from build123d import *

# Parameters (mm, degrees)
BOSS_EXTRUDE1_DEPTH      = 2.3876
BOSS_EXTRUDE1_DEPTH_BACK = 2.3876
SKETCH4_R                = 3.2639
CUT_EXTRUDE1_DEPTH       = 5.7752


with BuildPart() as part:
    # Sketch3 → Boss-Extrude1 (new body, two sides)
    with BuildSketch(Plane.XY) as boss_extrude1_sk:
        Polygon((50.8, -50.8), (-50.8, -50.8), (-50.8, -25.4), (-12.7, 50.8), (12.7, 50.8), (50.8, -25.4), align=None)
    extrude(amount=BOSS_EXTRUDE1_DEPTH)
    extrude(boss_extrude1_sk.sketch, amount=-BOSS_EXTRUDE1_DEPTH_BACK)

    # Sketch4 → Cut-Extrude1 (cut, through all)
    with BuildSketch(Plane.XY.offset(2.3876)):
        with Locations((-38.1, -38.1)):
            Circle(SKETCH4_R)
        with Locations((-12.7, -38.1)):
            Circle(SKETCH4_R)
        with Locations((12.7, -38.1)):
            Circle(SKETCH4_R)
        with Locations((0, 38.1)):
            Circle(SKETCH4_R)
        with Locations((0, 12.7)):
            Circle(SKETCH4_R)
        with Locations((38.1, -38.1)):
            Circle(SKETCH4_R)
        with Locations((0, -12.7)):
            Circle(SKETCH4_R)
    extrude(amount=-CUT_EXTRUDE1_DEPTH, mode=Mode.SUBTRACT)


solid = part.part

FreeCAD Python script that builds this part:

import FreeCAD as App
import Part
import Sketcher
from FreeCAD import Vector
Q = App.Units.Quantity

doc = App.newDocument("Part")
body = doc.addObject("PartDesign::Body", "Body")

# Sketch on XY plane
sketch1 = doc.addObject("Sketcher::SketchObject", "Sketch")
body.addObject(sketch1)
sketch1.AttachmentSupport = (doc.XY_Plane, [""])
sketch1.MapMode = "FlatFace"
sketch1.addGeometry(Part.LineSegment(Vector(-51, -51, 0), Vector(51, -51, 0)), False)
sketch1.addGeometry(Part.LineSegment(Vector(51, -51, 0), Vector(51, -25, 0)), False)
sketch1.addGeometry(Part.LineSegment(Vector(51, -25, 0), Vector(13, 51, 0)), False)
sketch1.addGeometry(Part.LineSegment(Vector(13, 51, 0), Vector(-13, 51, 0)), False)
sketch1.addGeometry(Part.LineSegment(Vector(-13, 51, 0), Vector(-51, -25, 0)), False)
sketch1.addGeometry(Part.LineSegment(Vector(-51, -25, 0), Vector(-51, -51, 0)), False)
sketch1.addConstraint(Sketcher.Constraint("Coincident", 0, 2, 1, 1))
sketch1.addConstraint(Sketcher.Constraint("Coincident", 1, 2, 2, 1))
sketch1.addConstraint(Sketcher.Constraint("Coincident", 2, 2, 3, 1))
sketch1.addConstraint(Sketcher.Constraint("Coincident", 3, 2, 4, 1))
sketch1.addConstraint(Sketcher.Constraint("Coincident", 4, 2, 5, 1))
sketch1.addConstraint(Sketcher.Constraint("Coincident", 5, 2, 0, 1))
sketch1.addConstraint(Sketcher.Constraint("Horizontal", 0))
sketch1.addConstraint(Sketcher.Constraint("Vertical", 1))
sketch1.addConstraint(Sketcher.Constraint("Horizontal", 3))
sketch1.addConstraint(Sketcher.Constraint("Vertical", 5))
sketch1.addConstraint(Sketcher.Constraint("Symmetric", 1, 2, 4, 2, -2))
sketch1.addConstraint(Sketcher.Constraint("Equal", 3, 1))
sketch1.addConstraint(Sketcher.Constraint("Equal", 2, 4))
sketch1.addConstraint(Sketcher.Constraint("DistanceX", 0, 1, 0, 2, Q("4 in")))
sketch1.addConstraint(Sketcher.Constraint("DistanceX", 3, 2, 3, 1, Q("1 in")))
sketch1.addConstraint(Sketcher.Constraint("DistanceY", 0, 2, -1, 1, Q("2 in")))
sketch1.addConstraint(Sketcher.Constraint("DistanceY", -1, 1, 2, 2, Q("2 in")))
pad1 = doc.addObject("PartDesign::Pad", "Pad")
body.addObject(pad1)
pad1.Profile = sketch1
pad1.Type = "TwoLengths"
pad1.Length = Q("0.094 in")
pad1.Length2 = Q("0.094 in")

# Sketch on XY plane
sketch2 = doc.addObject("Sketcher::SketchObject", "Sketch001")
body.addObject(sketch2)
sketch2.AttachmentSupport = (doc.XY_Plane, [""])
sketch2.MapMode = "FlatFace"
sketch2.AttachmentOffset = App.Placement(Vector(0, 0, 0.094 * 25.4), App.Rotation())
sketch2.addGeometry(Part.Circle(Vector(-38.1, -38.1, 0), Vector(0, 0, 1), 3.3), False)
sketch2.addGeometry(Part.Circle(Vector(-12.7, -38.1, 0), Vector(0, 0, 1), 3.3), False)
sketch2.addGeometry(Part.Circle(Vector(12.7, -38.1, 0), Vector(0, 0, 1), 3.3), False)
sketch2.addGeometry(Part.Circle(Vector(0, 38.1, 0), Vector(0, 0, 1), 3.3), False)
sketch2.addGeometry(Part.Circle(Vector(0, 12.7, 0), Vector(0, 0, 1), 3.3), False)
sketch2.addGeometry(Part.Circle(Vector(38.1, -38.1, 0), Vector(0, 0, 1), 3.3), False)
sketch2.addGeometry(Part.Circle(Vector(0, -12.7, 0), Vector(0, 0, 1), 3.3), False)
sketch2.addConstraint(Sketcher.Constraint("Equal", 0, 1))
sketch2.addConstraint(Sketcher.Constraint("Equal", 1, 2))
sketch2.addConstraint(Sketcher.Constraint("Equal", 2, 3))
sketch2.addConstraint(Sketcher.Constraint("Equal", 3, 4))
sketch2.addConstraint(Sketcher.Constraint("Equal", 4, 5))
sketch2.addConstraint(Sketcher.Constraint("Equal", 5, 6))
sketch2.addConstraint(Sketcher.Constraint("Symmetric", 4, 3, 6, 3, -1, 1))
sketch2.addConstraint(Sketcher.Constraint("Symmetric", 1, 3, 2, 3, -2))
sketch2.addConstraint(Sketcher.Constraint("Symmetric", 0, 3, 5, 3, -2))
sketch2.addConstraint(Sketcher.Constraint("PointOnObject", 3, 3, -2))
sketch2.addConstraint(Sketcher.Constraint("PointOnObject", 4, 3, -2))
sketch2.addConstraint(Sketcher.Constraint("Horizontal", 0, 3, 1, 3))
sketch2.addConstraint(Sketcher.Constraint("Diameter", 0, Q("0.257 in")))
sketch2.addConstraint(Sketcher.Constraint("DistanceX", 0, 3, 1, 3, Q("1 in")))
sketch2.addConstraint(Sketcher.Constraint("DistanceX", 1, 3, 2, 3, Q("1 in")))
sketch2.addConstraint(Sketcher.Constraint("DistanceY", 1, 3, 3, 3, Q("3 in")))
sketch2.addConstraint(Sketcher.Constraint("DistanceY", 4, 3, 3, 3, Q("1 in")))
sketch2.addConstraint(Sketcher.Constraint("DistanceY", 6, 3, 4, 3, Q("1 in")))
pocket1 = doc.addObject("PartDesign::Pocket", "Pocket")
body.addObject(pocket1)
pocket1.Profile = sketch2
pocket1.Type = "ThroughAll"

doc.recompute()
